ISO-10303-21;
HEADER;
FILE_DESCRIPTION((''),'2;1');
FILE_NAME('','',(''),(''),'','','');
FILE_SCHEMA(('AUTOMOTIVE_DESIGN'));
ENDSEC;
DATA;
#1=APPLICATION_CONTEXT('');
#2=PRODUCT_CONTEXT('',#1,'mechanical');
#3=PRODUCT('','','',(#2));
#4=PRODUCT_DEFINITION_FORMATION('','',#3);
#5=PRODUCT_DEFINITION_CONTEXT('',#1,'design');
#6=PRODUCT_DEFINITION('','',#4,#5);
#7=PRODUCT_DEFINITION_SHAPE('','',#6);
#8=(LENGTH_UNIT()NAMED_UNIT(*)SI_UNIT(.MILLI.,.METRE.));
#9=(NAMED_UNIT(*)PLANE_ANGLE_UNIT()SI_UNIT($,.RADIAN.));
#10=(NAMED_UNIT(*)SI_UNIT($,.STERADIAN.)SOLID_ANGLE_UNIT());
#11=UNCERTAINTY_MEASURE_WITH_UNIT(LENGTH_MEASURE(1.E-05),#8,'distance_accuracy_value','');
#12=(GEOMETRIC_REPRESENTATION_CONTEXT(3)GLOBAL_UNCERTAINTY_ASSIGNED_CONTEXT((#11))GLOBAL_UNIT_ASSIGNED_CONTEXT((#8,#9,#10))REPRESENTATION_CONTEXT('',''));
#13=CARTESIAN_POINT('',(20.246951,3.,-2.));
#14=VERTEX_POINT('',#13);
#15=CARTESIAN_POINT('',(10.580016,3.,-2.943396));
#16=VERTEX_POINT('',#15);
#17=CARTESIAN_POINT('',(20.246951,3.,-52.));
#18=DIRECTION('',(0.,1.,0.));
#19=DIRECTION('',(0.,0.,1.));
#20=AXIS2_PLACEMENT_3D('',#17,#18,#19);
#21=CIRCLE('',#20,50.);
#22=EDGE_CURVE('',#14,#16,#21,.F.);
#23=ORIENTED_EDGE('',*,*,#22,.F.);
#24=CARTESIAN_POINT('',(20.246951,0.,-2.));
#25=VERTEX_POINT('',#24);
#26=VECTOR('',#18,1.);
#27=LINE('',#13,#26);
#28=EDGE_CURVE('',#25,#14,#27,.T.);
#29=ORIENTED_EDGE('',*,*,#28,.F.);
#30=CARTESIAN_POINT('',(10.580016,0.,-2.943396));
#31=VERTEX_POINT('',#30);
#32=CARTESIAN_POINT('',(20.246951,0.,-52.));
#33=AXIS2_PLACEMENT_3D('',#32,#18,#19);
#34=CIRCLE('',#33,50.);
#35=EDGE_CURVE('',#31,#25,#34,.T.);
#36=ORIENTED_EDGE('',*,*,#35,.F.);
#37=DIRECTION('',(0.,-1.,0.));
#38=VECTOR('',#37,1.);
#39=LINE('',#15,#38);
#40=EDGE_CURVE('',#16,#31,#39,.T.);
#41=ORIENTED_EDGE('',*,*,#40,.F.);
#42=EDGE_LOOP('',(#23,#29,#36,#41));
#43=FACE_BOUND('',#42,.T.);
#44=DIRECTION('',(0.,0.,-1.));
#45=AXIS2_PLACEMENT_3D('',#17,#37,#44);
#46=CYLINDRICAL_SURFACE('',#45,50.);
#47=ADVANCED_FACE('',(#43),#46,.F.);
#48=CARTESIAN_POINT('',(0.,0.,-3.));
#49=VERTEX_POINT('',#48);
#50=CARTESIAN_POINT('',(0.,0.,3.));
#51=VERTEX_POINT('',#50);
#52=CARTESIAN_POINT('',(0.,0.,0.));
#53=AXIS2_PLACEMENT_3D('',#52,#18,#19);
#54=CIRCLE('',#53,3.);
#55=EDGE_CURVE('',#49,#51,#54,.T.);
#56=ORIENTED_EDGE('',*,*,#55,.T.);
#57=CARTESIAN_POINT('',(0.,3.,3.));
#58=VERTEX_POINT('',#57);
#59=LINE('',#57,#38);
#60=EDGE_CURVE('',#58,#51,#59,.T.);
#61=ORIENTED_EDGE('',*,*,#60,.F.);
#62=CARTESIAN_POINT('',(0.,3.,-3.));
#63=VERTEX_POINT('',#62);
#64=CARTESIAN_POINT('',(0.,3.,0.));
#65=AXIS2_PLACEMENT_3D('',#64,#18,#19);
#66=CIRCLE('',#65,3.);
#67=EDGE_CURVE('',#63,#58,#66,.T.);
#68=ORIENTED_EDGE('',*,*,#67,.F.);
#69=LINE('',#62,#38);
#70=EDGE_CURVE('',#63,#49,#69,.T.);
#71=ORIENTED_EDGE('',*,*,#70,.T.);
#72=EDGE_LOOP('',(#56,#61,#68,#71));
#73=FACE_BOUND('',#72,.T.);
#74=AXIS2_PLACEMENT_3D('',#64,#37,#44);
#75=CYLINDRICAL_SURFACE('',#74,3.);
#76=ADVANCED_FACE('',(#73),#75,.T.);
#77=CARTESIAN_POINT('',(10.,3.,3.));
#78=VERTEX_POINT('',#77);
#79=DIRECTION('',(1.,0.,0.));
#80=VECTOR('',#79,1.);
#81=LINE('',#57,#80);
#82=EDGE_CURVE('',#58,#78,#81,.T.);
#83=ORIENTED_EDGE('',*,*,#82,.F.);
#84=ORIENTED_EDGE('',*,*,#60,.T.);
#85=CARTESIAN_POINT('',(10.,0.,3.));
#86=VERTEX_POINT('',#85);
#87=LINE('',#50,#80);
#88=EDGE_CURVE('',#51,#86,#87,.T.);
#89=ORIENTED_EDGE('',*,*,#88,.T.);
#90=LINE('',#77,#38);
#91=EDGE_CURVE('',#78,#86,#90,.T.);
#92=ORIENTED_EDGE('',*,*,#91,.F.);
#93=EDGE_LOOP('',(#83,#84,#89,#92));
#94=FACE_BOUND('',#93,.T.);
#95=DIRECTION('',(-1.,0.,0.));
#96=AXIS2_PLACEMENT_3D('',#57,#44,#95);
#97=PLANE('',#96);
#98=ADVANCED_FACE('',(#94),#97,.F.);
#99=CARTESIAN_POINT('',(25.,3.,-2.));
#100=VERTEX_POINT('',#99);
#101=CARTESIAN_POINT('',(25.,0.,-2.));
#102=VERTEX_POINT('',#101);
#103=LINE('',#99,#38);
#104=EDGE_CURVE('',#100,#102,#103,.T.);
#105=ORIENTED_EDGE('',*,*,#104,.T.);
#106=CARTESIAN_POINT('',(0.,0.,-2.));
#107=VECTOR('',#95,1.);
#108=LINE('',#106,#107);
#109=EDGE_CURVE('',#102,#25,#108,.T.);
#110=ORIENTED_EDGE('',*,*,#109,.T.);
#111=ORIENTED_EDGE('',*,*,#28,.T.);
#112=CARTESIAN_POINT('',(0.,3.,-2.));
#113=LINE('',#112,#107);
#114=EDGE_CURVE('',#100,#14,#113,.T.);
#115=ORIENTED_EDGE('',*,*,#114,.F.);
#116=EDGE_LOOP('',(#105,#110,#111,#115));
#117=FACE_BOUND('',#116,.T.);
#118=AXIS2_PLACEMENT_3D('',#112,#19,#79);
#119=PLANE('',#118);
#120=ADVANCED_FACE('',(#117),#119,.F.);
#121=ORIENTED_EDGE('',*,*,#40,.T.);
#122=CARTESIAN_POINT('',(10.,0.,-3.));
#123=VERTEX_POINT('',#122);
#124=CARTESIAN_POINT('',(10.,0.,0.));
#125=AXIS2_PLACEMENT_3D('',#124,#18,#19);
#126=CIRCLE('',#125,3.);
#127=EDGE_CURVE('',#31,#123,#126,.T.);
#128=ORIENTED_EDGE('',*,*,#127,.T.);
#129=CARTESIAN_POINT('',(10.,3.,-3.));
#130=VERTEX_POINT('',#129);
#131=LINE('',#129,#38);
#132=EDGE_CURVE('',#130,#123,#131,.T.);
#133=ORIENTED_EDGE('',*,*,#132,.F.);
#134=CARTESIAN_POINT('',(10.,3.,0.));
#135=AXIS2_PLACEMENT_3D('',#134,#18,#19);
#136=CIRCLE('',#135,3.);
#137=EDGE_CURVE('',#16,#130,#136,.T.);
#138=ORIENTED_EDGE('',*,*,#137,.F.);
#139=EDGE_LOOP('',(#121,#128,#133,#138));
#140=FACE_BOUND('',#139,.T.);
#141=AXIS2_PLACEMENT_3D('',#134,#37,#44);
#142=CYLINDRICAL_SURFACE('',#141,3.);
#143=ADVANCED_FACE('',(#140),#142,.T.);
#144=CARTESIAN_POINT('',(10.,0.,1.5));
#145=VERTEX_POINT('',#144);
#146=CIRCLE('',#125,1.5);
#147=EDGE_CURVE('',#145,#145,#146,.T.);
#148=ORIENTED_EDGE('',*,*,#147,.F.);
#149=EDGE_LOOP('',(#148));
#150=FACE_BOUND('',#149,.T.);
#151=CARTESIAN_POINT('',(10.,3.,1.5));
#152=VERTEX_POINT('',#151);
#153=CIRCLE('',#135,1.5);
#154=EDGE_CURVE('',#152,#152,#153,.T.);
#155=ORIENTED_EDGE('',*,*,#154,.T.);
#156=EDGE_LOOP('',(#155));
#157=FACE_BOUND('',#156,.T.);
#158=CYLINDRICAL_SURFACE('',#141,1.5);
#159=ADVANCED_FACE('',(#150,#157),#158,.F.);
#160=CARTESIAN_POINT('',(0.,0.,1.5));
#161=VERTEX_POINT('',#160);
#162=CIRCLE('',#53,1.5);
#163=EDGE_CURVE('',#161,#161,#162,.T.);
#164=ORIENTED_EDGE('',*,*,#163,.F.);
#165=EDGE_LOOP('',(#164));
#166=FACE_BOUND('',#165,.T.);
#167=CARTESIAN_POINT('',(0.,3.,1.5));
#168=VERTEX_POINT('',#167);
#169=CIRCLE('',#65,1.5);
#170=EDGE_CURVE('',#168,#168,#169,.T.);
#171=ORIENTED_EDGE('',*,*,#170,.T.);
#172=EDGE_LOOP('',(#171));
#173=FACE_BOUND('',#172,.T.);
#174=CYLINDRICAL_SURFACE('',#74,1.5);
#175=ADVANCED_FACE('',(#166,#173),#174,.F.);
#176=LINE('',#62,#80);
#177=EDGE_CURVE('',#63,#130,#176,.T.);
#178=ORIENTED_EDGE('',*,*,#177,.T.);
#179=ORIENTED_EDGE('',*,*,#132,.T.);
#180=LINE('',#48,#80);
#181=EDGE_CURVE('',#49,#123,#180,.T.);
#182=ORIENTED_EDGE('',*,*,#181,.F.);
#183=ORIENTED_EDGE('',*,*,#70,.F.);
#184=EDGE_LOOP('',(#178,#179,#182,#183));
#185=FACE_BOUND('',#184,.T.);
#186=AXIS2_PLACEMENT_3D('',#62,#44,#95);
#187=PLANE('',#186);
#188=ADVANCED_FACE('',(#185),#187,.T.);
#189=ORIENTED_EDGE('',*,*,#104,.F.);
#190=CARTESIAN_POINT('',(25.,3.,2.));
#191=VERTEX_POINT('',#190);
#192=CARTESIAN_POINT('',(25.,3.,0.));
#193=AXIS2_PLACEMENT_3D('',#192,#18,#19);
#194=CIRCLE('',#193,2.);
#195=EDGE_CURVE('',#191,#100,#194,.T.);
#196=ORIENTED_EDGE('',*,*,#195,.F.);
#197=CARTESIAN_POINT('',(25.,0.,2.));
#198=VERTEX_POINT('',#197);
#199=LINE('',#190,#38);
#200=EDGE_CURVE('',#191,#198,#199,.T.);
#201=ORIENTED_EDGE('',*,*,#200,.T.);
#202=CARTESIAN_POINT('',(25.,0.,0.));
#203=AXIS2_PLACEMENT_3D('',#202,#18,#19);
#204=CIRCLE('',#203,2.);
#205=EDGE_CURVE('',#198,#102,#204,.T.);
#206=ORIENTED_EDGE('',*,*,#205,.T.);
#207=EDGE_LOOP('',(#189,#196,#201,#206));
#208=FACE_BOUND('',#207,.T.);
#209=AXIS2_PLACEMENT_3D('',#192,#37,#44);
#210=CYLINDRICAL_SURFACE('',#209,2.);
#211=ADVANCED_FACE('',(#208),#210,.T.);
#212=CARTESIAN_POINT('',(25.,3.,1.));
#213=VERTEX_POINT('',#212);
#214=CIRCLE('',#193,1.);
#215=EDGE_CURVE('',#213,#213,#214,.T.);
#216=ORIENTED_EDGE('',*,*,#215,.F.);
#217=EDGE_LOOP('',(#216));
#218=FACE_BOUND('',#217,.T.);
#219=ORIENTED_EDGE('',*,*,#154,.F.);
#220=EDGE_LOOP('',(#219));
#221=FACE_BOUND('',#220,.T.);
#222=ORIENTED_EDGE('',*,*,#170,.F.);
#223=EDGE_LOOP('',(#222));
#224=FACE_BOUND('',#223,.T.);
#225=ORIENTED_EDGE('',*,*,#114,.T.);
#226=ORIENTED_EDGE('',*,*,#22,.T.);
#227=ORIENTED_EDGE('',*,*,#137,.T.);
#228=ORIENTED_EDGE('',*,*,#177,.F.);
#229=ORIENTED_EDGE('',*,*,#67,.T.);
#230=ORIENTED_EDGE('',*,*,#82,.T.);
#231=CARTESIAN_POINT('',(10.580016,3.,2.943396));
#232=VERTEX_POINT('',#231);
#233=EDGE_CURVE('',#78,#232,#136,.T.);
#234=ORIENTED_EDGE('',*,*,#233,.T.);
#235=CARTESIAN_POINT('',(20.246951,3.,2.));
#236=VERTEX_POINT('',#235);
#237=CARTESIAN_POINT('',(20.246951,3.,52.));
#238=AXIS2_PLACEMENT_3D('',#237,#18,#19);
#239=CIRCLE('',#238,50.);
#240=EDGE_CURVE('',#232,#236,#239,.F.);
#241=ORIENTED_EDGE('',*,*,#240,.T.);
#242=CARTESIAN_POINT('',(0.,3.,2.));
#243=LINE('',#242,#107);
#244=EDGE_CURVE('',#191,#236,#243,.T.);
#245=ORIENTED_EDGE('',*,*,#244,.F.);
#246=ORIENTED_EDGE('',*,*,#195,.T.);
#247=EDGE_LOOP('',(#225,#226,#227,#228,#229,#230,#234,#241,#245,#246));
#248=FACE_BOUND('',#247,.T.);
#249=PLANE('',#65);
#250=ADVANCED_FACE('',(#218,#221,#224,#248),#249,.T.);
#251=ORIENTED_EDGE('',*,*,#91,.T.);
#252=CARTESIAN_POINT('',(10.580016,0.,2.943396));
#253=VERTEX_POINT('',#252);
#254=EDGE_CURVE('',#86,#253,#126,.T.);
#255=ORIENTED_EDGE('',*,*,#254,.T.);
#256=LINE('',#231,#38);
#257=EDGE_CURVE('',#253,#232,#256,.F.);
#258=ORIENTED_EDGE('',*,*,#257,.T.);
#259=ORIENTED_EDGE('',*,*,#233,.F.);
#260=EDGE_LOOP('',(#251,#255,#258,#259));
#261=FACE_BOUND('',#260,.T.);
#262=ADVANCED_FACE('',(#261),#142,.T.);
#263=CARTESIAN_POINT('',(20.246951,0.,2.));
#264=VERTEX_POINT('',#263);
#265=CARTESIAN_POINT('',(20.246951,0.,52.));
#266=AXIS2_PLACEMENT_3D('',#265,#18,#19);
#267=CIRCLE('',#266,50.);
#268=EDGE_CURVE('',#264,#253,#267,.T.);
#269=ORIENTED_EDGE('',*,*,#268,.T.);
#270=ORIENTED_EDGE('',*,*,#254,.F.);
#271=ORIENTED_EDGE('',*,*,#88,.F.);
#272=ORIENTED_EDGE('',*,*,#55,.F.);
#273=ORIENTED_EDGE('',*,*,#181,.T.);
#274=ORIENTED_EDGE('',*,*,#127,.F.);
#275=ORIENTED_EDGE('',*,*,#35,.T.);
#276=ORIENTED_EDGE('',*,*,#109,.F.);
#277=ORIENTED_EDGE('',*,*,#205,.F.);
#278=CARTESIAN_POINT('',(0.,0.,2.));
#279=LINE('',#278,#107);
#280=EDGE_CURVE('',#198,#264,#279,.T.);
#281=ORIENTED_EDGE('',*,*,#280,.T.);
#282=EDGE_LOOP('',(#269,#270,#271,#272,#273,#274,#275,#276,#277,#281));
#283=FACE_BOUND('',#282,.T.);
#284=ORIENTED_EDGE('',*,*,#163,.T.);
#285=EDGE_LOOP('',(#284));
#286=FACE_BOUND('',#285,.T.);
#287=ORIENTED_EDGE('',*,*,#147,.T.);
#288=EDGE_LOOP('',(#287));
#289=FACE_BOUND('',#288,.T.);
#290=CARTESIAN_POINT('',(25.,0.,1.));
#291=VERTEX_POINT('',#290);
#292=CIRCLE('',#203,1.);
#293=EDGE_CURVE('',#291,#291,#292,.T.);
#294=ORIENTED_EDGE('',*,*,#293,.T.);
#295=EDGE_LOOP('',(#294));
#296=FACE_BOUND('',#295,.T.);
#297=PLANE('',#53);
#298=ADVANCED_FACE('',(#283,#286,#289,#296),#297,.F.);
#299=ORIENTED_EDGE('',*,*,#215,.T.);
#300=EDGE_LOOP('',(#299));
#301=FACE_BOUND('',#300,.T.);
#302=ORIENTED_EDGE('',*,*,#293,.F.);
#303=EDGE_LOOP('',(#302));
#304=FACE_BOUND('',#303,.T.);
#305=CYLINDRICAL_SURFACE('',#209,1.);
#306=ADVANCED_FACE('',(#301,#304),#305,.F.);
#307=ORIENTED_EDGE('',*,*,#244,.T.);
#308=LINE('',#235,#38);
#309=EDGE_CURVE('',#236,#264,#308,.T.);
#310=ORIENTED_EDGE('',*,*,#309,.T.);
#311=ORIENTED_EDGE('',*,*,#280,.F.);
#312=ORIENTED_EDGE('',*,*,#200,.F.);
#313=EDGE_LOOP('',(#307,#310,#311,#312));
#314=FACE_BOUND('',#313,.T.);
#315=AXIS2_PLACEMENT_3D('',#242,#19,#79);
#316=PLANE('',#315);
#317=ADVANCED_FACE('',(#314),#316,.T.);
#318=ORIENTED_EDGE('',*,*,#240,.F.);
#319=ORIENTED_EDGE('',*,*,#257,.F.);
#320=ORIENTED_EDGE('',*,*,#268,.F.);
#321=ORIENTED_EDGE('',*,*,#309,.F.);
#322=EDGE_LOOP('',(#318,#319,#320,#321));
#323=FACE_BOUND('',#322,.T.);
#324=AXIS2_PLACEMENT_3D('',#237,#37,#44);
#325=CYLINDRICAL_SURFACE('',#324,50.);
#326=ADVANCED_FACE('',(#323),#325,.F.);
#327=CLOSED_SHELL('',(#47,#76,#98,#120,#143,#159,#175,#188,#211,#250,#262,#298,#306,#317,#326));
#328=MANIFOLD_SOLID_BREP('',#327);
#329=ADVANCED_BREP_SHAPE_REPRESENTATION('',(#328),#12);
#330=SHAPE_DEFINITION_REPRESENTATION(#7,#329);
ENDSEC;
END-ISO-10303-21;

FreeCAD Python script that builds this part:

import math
import FreeCAD as App
import Part
import Sketcher
Q = App.Units.Quantity


def edges_at(feature, points):
    """Names of the edges that pass closest to the given points."""
    edges = feature.Shape.Edges
    near = lambda p: min(range(len(edges)), key=lambda i: edges[i].distToShape(Part.Vertex(*p))[0])
    return sorted({f"Edge{near(p) + 1}" for p in points})

doc = App.newDocument("Part")
params = doc.addObject("Spreadsheet::Sheet", "Params")
for row, (alias, value) in enumerate([
    ("sketch1_diameter", "2 mm"),
    ("sketch1_diameter2", "3 mm"),
    ("sketch1_radius", "3 mm"),
    ("sketch1_radius2", "2 mm"),
    ("sketch1_width", "10 mm"),
    ("pad1_length", "3 mm"),
    ("fillet_radius", "50 mm"),
], start=1):
    params.set(f"A{row}", alias)
    params.set(f"B{row}", "=" + value)
    params.setAlias(f"B{row}", alias)

body = doc.addObject("PartDesign::Body", "Body")

sketch1 = doc.addObject("Sketcher::SketchObject", "Sketch")
body.addObject(sketch1)
sketch1.AttachmentSupport = (doc.XZ_Plane, [""])
sketch1.MapMode = "FlatFace"
sketch1.addGeometry([
    Part.LineSegment(App.Vector(25, -2, 0), App.Vector(12.236068, -2, 0)),
    Part.ArcOfCircle(Part.Circle(App.Vector(10, 0, 0), App.Vector(0, 0, 1), 3), math.radians(-90), math.radians(-41.810315)),
    Part.LineSegment(App.Vector(10, -3, 0), App.Vector(0, -3, 0)),
    Part.ArcOfCircle(Part.Circle(App.Vector(0, 0, 0), App.Vector(0, 0, 1), 3), math.radians(90), math.radians(270)),
    Part.LineSegment(App.Vector(0, 3, 0), App.Vector(10, 3, 0)),
    Part.ArcOfCircle(Part.Circle(App.Vector(10, 0, 0), App.Vector(0, 0, 1), 3), math.radians(41.810315), math.radians(90)),
    Part.LineSegment(App.Vector(12.236068, 2, 0), App.Vector(25, 2, 0)),
    Part.ArcOfCircle(Part.Circle(App.Vector(25, 0, 0), App.Vector(0, 0, 1), 2), math.radians(-90), math.radians(90)),
    Part.Circle(App.Vector(25, 0, 0), App.Vector(0, 0, 1), 1),
    Part.Circle(App.Vector(10, 0, 0), App.Vector(0, 0, 1), 1.5),
    Part.Circle(App.Vector(0, 0, 0), App.Vector(0, 0, 1), 1.5),
], False)
sketch1.addConstraint([
    Sketcher.Constraint("Coincident", 0, 2, 1, 2),
    Sketcher.Constraint("Tangent", 1, 1, 2, 1),
    Sketcher.Constraint("Tangent", 2, 2, 3, 2),
    Sketcher.Constraint("Tangent", 3, 1, 4, 1),
    Sketcher.Constraint("Tangent", 4, 2, 5, 2),
    Sketcher.Constraint("Coincident", 5, 1, 6, 1),
    Sketcher.Constraint("Tangent", 6, 2, 7, 2),
    Sketcher.Constraint("Tangent", 7, 1, 0, 1),
    Sketcher.Constraint("Horizontal", 0),
    Sketcher.Constraint("Horizontal", 2),
    Sketcher.Constraint("Horizontal", 4),
    Sketcher.Constraint("Horizontal", 6),
    Sketcher.Constraint("Coincident", 3, 3, -1, 1),
    Sketcher.Constraint("Coincident", 10, 3, -1, 1),
    Sketcher.Constraint("Coincident", 5, 3, 1, 3),
    Sketcher.Constraint("Coincident", 8, 3, 7, 3),
    Sketcher.Constraint("Coincident", 9, 3, 1, 3),
    Sketcher.Constraint("Equal", 1, 3),
    Sketcher.Constraint("Equal", 9, 10),
    Sketcher.Constraint("PointOnObject", 7, 3, -1),
    Sketcher.Constraint("Diameter", 8, Q("2 mm")),
    Sketcher.Constraint("Diameter", 9, Q("3 mm")),
    Sketcher.Constraint("Radius", 1, Q("3 mm")),
    Sketcher.Constraint("Radius", 7, Q("2 mm")),
    Sketcher.Constraint("DistanceX", 2, 2, 2, 1, Q("10 mm")),
    Sketcher.Constraint("DistanceX", -1, 1, 7, 3, Q("25 mm")),
])
sketch1.setExpression("Constraints[20]", "Params.sketch1_diameter")
sketch1.setExpression("Constraints[21]", "Params.sketch1_diameter2")
sketch1.setExpression("Constraints[22]", "Params.sketch1_radius")
sketch1.setExpression("Constraints[23]", "Params.sketch1_radius2")
sketch1.setExpression("Constraints[24]", "Params.sketch1_width")
pad1 = doc.addObject("PartDesign::Pad", "Pad")
body.addObject(pad1)
pad1.Profile = sketch1
pad1.setExpression("Length", "Params.pad1_length")
pad1.Reversed = True
doc.recompute()

fillet = doc.addObject("PartDesign::Fillet", "Fillet")
body.addObject(fillet)
fillet.Base = (pad1, edges_at(pad1, [(12.236, 1.5, 2), (12.236, 1.5, -2)]))
fillet.setExpression("Radius", "Params.fillet_radius")

doc.recompute()
